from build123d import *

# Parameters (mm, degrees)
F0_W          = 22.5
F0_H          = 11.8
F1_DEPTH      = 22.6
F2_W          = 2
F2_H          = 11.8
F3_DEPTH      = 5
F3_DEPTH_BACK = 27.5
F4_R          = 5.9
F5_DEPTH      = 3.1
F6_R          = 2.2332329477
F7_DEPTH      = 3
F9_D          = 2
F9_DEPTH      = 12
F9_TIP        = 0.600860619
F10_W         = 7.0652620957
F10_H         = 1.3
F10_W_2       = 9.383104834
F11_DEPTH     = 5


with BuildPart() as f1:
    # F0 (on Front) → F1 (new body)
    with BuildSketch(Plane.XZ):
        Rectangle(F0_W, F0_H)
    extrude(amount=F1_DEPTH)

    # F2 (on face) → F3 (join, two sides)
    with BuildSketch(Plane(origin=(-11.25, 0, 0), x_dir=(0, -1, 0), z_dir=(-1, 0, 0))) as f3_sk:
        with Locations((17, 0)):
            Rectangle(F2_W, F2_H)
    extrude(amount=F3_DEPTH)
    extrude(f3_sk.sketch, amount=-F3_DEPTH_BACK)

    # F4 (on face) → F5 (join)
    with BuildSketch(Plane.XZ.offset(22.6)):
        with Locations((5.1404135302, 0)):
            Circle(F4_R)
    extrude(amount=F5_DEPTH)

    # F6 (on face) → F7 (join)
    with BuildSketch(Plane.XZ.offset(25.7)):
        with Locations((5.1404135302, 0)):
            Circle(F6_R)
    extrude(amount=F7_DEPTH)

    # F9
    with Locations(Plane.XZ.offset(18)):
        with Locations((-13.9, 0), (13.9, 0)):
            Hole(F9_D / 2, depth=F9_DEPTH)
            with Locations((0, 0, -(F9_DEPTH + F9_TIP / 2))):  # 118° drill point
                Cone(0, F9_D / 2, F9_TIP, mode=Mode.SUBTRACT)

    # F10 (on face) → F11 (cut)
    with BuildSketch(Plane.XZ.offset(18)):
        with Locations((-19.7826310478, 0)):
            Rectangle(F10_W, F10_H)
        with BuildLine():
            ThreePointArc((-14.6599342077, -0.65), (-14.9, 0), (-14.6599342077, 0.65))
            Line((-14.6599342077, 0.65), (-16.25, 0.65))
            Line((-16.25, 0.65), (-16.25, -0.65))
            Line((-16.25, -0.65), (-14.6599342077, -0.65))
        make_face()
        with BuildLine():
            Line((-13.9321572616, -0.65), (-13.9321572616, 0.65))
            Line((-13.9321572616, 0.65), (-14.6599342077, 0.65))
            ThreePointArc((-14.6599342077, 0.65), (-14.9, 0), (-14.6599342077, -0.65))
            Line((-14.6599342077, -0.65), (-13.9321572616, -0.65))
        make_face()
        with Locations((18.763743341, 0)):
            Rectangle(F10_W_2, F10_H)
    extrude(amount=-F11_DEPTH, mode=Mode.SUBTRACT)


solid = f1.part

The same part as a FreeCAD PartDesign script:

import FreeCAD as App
import Part
import Sketcher

V = App.Vector
Q = App.Units.Quantity


def add_polygon(sketch, points):
    """Adds a closed chain of lines whose ends are joined by coincident constraints."""
    first, n = sketch.GeometryCount, len(points)
    for a, b in zip(points, points[1:] + points[:1]):
        sketch.addGeometry(Part.LineSegment(App.Vector(*a, 0), App.Vector(*b, 0)), False)
    for i in range(n):
        sketch.addConstraint(Sketcher.Constraint("Coincident", first + i, 2, first + (i + 1) % n, 1))

doc = App.newDocument("Part")
body = doc.addObject("PartDesign::Body", "Body")

# Sketch on XZ plane
sketch1 = doc.addObject("Sketcher::SketchObject", "Sketch")
body.addObject(sketch1)
sketch1.AttachmentSupport = (doc.XZ_Plane, [""])
sketch1.MapMode = "FlatFace"
add_polygon(sketch1, [(-11, 6), (-11, -6), (11, -6), (11, 6)])  # lines 0-3
sketch1.addConstraint([
    Sketcher.Constraint("Vertical", 0),
    Sketcher.Constraint("Horizontal", 1),
    Sketcher.Constraint("Vertical", 2),
    Sketcher.Constraint("Horizontal", 3),
    Sketcher.Constraint("Symmetric", 0, 2, 2, 2, -1, 1),
    Sketcher.Constraint("DistanceX", 1, 1, 1, 2, Q("22.5 mm")),
    Sketcher.Constraint("DistanceY", 0, 2, 0, 1, Q("11.8 mm")),
])
pad1 = doc.addObject("PartDesign::Pad", "Pad")
body.addObject(pad1)
pad1.Profile = sketch1
pad1.Length = 22.6

# Sketch on YZ plane
sketch2 = doc.addObject("Sketcher::SketchObject", "Sketch001")
body.addObject(sketch2)
sketch2.AttachmentSupport = (doc.YZ_Plane, [""])
sketch2.MapMode = "FlatFace"
sketch2.AttachmentOffset = App.Placement(V(0, 0, -11.25), App.Rotation())
add_polygon(sketch2, [(-16, 5.9), (-16, -5.9), (-18, -5.9), (-18, 5.9)])  # lines 0-3
sketch2.addConstraint([
    Sketcher.Constraint("Vertical", 0),
    Sketcher.Constraint("Horizontal", 1),
    Sketcher.Constraint("Vertical", 2),
    Sketcher.Constraint("Horizontal", 3),
    Sketcher.Constraint("DistanceX", 1, 2, 1, 1, Q("2 mm")),
    Sketcher.Constraint("DistanceY", 0, 2, 0, 1, Q("11.8 mm")),
    Sketcher.Constraint("DistanceX", 0, 2, -1, 1, Q("16 mm")),
    Sketcher.Constraint("DistanceY", 0, 2, -1, 1, Q("5.9 mm")),
])
pad2 = doc.addObject("PartDesign::Pad", "Pad001")
body.addObject(pad2)
pad2.Profile = sketch2
pad2.Type = "TwoLengths"
pad2.Length = 5
pad2.Length2 = 27.5
pad2.Reversed = True

# Sketch on XZ plane
sketch3 = doc.addObject("Sketcher::SketchObject", "Sketch002")
body.addObject(sketch3)
sketch3.AttachmentSupport = (doc.XZ_Plane, [""])
sketch3.MapMode = "FlatFace"
sketch3.AttachmentOffset = App.Placement(V(0, 0, 22.6), App.Rotation())
sketch3.addGeometry(Part.Circle(V(5, 0, 0), V(0, 0, 1), 6), False)
sketch3.addConstraint([
    Sketcher.Constraint("PointOnObject", 0, 3, -1),
    Sketcher.Constraint("Diameter", 0, Q("11.8 mm")),
    Sketcher.Constraint("DistanceX", -1, 1, 0, 3, Q("5.140414 mm")),
])
pad3 = doc.addObject("PartDesign::Pad", "Pad002")
body.addObject(pad3)
pad3.Profile = sketch3
pad3.Length = 3.1

# Sketch on XZ plane
sketch4 = doc.addObject("Sketcher::SketchObject", "Sketch003")
body.addObject(sketch4)
sketch4.AttachmentSupport = (doc.XZ_Plane, [""])
sketch4.MapMode = "FlatFace"
sketch4.AttachmentOffset = App.Placement(V(0, 0, 25.7), App.Rotation())
sketch4.addGeometry(Part.Circle(V(5.1, 0, 0), V(0, 0, 1), 2.2), False)
sketch4.addConstraint([
    Sketcher.Constraint("PointOnObject", 0, 3, -1),
    Sketcher.Constraint("Diameter", 0, Q("4.466466 mm")),
    Sketcher.Constraint("DistanceX", -1, 1, 0, 3, Q("5.140414 mm")),
])
pad4 = doc.addObject("PartDesign::Pad", "Pad003")
body.addObject(pad4)
pad4.Profile = sketch4
pad4.Length = 3

# Sketch on XZ plane
sketch5 = doc.addObject("Sketcher::SketchObject", "Sketch004")
body.addObject(sketch5)
sketch5.AttachmentSupport = (doc.XZ_Plane, [""])
sketch5.MapMode = "FlatFace"
sketch5.AttachmentOffset = App.Placement(V(0, 0, 18), App.Rotation())
sketch5.addGeometry([
    Part.Circle(V(-13.9, 0, 0), V(0, 0, 1), 1),
    Part.Circle(V(13.9, 0, 0), V(0, 0, 1), 1),
], False)
sketch5.addConstraint([
    Sketcher.Constraint("Equal", 0, 1),
    Sketcher.Constraint("Symmetric", 0, 3, 1, 3, -1, 1),
    Sketcher.Constraint("PointOnObject", 0, 3, -1),
    Sketcher.Constraint("Diameter", 0, Q("2 mm")),
    Sketcher.Constraint("DistanceX", 0, 3, -1, 1, Q("13.9 mm")),
])
doc.recompute()
hole = doc.addObject("PartDesign::Hole", "Hole")
body.addObject(hole)
hole.Profile = sketch5
hole.ThreadType = "None"
hole.Diameter = 2
hole.DepthType = "Dimension"
hole.Depth = 12
hole.DrillPoint = "Angled"
hole.DrillPointAngle = 118

# Sketch on XZ plane
sketch6 = doc.addObject("Sketcher::SketchObject", "Sketch005")
body.addObject(sketch6)
sketch6.AttachmentSupport = (doc.XZ_Plane, [""])
sketch6.MapMode = "FlatFace"
sketch6.AttachmentOffset = App.Placement(V(0, 0, 18), App.Rotation())
add_polygon(sketch6, [(-23.3, 0.7), (-23.3, -0.7), (-13.9, -0.7), (-13.9, 0.7)])  # lines 0-3
add_polygon(sketch6, [(14.1, 0.7), (14.1, -0.7), (23.5, -0.7), (23.5, 0.7)])  # lines 4-7
sketch6.addConstraint([
    Sketcher.Constraint("Vertical", 0),
    Sketcher.Constraint("Horizontal", 1),
    Sketcher.Constraint("Vertical", 2),
    Sketcher.Constraint("Horizontal", 3),
    Sketcher.Constraint("Vertical", 4),
    Sketcher.Constraint("Horizontal", 5),
    Sketcher.Constraint("Vertical", 6),
    Sketcher.Constraint("Horizontal", 7),
    Sketcher.Constraint("Horizontal", 1, 2, 4, 2),
    Sketcher.Constraint("Horizontal", 3, 2, 6, 2),
    Sketcher.Constraint("Equal", 3, 5),
    Sketcher.Constraint("DistanceY", 0, 2, 0, 1, Q("1.3 mm")),
    Sketcher.Constraint("DistanceY", 0, 2, -1, 1, Q("0.65 mm")),
    Sketcher.Constraint("DistanceX", 1, 1, 1, 2, Q("9.383105 mm")),
    Sketcher.Constraint("DistanceX", -1, 1, 4, 2, Q("14.072191 mm")),
    Sketcher.Constraint("DistanceX", 1, 2, 4, 2, Q("28.004348 mm")),
])
pocket1 = doc.addObject("PartDesign::Pocket", "Pocket")
body.addObject(pocket1)
pocket1.Profile = sketch6
pocket1.Length = 5

doc.recompute()
